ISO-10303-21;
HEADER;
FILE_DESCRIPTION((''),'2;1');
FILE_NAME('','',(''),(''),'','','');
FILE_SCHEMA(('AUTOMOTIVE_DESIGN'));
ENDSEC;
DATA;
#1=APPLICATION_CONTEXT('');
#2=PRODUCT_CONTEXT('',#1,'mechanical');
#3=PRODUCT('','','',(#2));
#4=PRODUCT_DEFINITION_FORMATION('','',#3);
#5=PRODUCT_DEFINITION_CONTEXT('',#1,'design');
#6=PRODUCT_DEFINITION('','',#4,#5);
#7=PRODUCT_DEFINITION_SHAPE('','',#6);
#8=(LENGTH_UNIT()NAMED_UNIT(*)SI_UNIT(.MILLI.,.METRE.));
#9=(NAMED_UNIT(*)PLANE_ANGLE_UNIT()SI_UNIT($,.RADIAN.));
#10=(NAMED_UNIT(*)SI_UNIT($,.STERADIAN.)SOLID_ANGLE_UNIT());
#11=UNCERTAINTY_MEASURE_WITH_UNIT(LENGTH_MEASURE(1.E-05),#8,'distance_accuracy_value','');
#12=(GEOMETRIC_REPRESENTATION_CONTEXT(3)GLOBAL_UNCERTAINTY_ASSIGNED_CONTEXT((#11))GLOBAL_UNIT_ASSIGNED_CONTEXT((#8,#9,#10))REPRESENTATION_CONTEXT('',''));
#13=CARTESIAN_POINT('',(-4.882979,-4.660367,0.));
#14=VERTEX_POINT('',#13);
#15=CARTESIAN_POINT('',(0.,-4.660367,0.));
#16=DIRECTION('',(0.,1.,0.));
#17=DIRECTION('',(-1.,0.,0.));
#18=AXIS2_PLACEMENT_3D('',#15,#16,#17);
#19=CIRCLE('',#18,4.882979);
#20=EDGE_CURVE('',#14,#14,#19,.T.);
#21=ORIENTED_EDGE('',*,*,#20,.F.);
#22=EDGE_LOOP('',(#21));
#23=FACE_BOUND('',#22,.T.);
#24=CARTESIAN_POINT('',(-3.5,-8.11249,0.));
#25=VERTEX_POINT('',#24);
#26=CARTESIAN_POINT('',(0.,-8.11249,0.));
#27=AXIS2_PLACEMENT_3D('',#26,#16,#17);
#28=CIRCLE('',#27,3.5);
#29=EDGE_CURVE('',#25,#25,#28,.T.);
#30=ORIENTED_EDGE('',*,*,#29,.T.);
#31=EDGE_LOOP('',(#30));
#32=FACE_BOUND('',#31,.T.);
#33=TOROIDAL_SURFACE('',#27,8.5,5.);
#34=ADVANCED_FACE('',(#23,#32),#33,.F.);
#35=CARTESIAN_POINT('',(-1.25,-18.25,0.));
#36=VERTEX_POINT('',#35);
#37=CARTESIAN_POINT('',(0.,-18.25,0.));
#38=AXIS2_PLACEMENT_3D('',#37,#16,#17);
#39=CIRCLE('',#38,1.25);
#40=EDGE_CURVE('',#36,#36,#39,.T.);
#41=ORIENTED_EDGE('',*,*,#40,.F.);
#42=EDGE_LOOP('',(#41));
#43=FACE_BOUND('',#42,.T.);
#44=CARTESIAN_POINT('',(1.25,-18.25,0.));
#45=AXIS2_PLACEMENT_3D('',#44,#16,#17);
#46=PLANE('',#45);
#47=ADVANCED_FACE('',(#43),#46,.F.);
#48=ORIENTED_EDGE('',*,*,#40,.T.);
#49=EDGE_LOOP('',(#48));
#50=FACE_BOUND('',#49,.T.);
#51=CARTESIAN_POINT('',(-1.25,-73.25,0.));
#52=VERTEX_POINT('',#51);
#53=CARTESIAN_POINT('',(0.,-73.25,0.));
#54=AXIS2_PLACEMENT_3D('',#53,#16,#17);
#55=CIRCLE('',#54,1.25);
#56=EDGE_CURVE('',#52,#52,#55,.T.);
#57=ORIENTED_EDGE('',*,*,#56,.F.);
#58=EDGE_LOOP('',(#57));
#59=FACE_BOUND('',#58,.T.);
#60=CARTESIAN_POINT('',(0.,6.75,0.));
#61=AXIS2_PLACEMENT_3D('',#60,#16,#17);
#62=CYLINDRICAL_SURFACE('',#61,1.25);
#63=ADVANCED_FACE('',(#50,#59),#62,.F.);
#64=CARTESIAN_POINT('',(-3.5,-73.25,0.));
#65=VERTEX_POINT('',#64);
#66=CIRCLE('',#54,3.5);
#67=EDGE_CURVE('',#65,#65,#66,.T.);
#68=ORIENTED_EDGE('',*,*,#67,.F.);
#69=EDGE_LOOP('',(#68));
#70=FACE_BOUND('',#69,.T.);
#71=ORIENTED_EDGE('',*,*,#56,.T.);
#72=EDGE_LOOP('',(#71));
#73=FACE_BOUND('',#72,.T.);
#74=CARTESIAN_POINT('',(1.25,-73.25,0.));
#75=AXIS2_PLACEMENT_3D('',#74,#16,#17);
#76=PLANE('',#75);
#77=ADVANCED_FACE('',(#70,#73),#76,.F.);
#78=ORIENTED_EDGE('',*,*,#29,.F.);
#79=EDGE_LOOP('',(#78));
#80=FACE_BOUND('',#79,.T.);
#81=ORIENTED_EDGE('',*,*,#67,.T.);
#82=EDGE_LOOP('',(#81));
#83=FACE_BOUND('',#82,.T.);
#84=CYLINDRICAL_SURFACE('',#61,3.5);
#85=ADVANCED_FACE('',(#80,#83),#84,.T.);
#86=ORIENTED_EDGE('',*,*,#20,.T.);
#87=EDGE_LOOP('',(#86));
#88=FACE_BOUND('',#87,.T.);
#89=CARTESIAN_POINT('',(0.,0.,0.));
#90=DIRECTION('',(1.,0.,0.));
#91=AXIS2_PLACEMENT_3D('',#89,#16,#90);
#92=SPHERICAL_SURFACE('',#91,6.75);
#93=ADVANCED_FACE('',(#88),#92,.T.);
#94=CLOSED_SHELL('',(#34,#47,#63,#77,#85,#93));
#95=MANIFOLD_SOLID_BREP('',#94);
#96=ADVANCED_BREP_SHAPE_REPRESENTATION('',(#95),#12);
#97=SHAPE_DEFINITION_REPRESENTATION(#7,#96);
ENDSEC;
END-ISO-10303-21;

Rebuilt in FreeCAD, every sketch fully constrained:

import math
import FreeCAD as App
import Part
import Sketcher

doc = App.newDocument("Part")
body = doc.addObject("PartDesign::Body", "Body")

# Sketch on XY plane
sketch1 = body.newObject("Sketcher::SketchObject", "Sketch")
sketch1.AttachmentSupport = (doc.getObject("XY_Plane"), [""])
sketch1.MapMode = "FlatFace"
sketch1.addGeometry([
    Part.LineSegment(App.Vector(0, 6.8, 0), App.Vector(0, -18.2, 0)),  # 0
    Part.LineSegment(App.Vector(0, -18.2, 0), App.Vector(1.2, -18.2, 0)),  # 1
    Part.LineSegment(App.Vector(1.2, -18.2, 0), App.Vector(1.2, -73.2, 0)),  # 2
    Part.LineSegment(App.Vector(1.2, -73.2, 0), App.Vector(3.5, -73.2, 0)),  # 3
    Part.LineSegment(App.Vector(3.5, -73.2, 0), App.Vector(3.5, -8.1, 0)),  # 4
    Part.ArcOfCircle(Part.Circle(App.Vector(8.5, -8.1, 0), App.Vector(0, 0, 1), 5), math.radians(136), math.radians(180)),  # 5
    Part.ArcOfCircle(Part.Circle(App.Vector(0, 0, 0), App.Vector(0, 0, 1), 6.8), math.radians(-44), math.radians(90)),  # 6
], False)
sketch1.addConstraint([
    Sketcher.Constraint("Coincident", 0, 2, 1, 1),
    Sketcher.Constraint("Coincident", 1, 2, 2, 1),
    Sketcher.Constraint("Coincident", 2, 2, 3, 1),
    Sketcher.Constraint("Coincident", 3, 2, 4, 1),
    Sketcher.Constraint("Tangent", 4, 2, 5, 2),
    Sketcher.Constraint("Tangent", 5, 1, 6, 1),
    Sketcher.Constraint("Coincident", 6, 2, 0, 1),
    Sketcher.Constraint("Vertical", 0),
    Sketcher.Constraint("Horizontal", 1),
    Sketcher.Constraint("Vertical", 2),
    Sketcher.Constraint("Horizontal", 3),
    Sketcher.Constraint("Vertical", 4),
    Sketcher.Constraint("Coincident", 6, 3, -1, 1),
    Sketcher.Constraint("PointOnObject", 0, 2, -2),
    Sketcher.Constraint("Radius", 5, 5.0),
    Sketcher.Constraint("DistanceY", 0, 2, 0, 1, 25.0),
    Sketcher.Constraint("DistanceY", 2, 2, 2, 1, 55.0),
    Sketcher.Constraint("Radius", 6, 6.75),
    Sketcher.Constraint("DistanceX", 1, 1, 1, 2, 1.25),
    Sketcher.Constraint("DistanceX", 3, 1, 3, 2, 2.25),
])
revolution = body.newObject("PartDesign::Revolution", "Revolution")
revolution.Profile = sketch1
revolution.ReferenceAxis = (sketch1, ["V_Axis"])
revolution.Angle = 360

doc.recompute()
